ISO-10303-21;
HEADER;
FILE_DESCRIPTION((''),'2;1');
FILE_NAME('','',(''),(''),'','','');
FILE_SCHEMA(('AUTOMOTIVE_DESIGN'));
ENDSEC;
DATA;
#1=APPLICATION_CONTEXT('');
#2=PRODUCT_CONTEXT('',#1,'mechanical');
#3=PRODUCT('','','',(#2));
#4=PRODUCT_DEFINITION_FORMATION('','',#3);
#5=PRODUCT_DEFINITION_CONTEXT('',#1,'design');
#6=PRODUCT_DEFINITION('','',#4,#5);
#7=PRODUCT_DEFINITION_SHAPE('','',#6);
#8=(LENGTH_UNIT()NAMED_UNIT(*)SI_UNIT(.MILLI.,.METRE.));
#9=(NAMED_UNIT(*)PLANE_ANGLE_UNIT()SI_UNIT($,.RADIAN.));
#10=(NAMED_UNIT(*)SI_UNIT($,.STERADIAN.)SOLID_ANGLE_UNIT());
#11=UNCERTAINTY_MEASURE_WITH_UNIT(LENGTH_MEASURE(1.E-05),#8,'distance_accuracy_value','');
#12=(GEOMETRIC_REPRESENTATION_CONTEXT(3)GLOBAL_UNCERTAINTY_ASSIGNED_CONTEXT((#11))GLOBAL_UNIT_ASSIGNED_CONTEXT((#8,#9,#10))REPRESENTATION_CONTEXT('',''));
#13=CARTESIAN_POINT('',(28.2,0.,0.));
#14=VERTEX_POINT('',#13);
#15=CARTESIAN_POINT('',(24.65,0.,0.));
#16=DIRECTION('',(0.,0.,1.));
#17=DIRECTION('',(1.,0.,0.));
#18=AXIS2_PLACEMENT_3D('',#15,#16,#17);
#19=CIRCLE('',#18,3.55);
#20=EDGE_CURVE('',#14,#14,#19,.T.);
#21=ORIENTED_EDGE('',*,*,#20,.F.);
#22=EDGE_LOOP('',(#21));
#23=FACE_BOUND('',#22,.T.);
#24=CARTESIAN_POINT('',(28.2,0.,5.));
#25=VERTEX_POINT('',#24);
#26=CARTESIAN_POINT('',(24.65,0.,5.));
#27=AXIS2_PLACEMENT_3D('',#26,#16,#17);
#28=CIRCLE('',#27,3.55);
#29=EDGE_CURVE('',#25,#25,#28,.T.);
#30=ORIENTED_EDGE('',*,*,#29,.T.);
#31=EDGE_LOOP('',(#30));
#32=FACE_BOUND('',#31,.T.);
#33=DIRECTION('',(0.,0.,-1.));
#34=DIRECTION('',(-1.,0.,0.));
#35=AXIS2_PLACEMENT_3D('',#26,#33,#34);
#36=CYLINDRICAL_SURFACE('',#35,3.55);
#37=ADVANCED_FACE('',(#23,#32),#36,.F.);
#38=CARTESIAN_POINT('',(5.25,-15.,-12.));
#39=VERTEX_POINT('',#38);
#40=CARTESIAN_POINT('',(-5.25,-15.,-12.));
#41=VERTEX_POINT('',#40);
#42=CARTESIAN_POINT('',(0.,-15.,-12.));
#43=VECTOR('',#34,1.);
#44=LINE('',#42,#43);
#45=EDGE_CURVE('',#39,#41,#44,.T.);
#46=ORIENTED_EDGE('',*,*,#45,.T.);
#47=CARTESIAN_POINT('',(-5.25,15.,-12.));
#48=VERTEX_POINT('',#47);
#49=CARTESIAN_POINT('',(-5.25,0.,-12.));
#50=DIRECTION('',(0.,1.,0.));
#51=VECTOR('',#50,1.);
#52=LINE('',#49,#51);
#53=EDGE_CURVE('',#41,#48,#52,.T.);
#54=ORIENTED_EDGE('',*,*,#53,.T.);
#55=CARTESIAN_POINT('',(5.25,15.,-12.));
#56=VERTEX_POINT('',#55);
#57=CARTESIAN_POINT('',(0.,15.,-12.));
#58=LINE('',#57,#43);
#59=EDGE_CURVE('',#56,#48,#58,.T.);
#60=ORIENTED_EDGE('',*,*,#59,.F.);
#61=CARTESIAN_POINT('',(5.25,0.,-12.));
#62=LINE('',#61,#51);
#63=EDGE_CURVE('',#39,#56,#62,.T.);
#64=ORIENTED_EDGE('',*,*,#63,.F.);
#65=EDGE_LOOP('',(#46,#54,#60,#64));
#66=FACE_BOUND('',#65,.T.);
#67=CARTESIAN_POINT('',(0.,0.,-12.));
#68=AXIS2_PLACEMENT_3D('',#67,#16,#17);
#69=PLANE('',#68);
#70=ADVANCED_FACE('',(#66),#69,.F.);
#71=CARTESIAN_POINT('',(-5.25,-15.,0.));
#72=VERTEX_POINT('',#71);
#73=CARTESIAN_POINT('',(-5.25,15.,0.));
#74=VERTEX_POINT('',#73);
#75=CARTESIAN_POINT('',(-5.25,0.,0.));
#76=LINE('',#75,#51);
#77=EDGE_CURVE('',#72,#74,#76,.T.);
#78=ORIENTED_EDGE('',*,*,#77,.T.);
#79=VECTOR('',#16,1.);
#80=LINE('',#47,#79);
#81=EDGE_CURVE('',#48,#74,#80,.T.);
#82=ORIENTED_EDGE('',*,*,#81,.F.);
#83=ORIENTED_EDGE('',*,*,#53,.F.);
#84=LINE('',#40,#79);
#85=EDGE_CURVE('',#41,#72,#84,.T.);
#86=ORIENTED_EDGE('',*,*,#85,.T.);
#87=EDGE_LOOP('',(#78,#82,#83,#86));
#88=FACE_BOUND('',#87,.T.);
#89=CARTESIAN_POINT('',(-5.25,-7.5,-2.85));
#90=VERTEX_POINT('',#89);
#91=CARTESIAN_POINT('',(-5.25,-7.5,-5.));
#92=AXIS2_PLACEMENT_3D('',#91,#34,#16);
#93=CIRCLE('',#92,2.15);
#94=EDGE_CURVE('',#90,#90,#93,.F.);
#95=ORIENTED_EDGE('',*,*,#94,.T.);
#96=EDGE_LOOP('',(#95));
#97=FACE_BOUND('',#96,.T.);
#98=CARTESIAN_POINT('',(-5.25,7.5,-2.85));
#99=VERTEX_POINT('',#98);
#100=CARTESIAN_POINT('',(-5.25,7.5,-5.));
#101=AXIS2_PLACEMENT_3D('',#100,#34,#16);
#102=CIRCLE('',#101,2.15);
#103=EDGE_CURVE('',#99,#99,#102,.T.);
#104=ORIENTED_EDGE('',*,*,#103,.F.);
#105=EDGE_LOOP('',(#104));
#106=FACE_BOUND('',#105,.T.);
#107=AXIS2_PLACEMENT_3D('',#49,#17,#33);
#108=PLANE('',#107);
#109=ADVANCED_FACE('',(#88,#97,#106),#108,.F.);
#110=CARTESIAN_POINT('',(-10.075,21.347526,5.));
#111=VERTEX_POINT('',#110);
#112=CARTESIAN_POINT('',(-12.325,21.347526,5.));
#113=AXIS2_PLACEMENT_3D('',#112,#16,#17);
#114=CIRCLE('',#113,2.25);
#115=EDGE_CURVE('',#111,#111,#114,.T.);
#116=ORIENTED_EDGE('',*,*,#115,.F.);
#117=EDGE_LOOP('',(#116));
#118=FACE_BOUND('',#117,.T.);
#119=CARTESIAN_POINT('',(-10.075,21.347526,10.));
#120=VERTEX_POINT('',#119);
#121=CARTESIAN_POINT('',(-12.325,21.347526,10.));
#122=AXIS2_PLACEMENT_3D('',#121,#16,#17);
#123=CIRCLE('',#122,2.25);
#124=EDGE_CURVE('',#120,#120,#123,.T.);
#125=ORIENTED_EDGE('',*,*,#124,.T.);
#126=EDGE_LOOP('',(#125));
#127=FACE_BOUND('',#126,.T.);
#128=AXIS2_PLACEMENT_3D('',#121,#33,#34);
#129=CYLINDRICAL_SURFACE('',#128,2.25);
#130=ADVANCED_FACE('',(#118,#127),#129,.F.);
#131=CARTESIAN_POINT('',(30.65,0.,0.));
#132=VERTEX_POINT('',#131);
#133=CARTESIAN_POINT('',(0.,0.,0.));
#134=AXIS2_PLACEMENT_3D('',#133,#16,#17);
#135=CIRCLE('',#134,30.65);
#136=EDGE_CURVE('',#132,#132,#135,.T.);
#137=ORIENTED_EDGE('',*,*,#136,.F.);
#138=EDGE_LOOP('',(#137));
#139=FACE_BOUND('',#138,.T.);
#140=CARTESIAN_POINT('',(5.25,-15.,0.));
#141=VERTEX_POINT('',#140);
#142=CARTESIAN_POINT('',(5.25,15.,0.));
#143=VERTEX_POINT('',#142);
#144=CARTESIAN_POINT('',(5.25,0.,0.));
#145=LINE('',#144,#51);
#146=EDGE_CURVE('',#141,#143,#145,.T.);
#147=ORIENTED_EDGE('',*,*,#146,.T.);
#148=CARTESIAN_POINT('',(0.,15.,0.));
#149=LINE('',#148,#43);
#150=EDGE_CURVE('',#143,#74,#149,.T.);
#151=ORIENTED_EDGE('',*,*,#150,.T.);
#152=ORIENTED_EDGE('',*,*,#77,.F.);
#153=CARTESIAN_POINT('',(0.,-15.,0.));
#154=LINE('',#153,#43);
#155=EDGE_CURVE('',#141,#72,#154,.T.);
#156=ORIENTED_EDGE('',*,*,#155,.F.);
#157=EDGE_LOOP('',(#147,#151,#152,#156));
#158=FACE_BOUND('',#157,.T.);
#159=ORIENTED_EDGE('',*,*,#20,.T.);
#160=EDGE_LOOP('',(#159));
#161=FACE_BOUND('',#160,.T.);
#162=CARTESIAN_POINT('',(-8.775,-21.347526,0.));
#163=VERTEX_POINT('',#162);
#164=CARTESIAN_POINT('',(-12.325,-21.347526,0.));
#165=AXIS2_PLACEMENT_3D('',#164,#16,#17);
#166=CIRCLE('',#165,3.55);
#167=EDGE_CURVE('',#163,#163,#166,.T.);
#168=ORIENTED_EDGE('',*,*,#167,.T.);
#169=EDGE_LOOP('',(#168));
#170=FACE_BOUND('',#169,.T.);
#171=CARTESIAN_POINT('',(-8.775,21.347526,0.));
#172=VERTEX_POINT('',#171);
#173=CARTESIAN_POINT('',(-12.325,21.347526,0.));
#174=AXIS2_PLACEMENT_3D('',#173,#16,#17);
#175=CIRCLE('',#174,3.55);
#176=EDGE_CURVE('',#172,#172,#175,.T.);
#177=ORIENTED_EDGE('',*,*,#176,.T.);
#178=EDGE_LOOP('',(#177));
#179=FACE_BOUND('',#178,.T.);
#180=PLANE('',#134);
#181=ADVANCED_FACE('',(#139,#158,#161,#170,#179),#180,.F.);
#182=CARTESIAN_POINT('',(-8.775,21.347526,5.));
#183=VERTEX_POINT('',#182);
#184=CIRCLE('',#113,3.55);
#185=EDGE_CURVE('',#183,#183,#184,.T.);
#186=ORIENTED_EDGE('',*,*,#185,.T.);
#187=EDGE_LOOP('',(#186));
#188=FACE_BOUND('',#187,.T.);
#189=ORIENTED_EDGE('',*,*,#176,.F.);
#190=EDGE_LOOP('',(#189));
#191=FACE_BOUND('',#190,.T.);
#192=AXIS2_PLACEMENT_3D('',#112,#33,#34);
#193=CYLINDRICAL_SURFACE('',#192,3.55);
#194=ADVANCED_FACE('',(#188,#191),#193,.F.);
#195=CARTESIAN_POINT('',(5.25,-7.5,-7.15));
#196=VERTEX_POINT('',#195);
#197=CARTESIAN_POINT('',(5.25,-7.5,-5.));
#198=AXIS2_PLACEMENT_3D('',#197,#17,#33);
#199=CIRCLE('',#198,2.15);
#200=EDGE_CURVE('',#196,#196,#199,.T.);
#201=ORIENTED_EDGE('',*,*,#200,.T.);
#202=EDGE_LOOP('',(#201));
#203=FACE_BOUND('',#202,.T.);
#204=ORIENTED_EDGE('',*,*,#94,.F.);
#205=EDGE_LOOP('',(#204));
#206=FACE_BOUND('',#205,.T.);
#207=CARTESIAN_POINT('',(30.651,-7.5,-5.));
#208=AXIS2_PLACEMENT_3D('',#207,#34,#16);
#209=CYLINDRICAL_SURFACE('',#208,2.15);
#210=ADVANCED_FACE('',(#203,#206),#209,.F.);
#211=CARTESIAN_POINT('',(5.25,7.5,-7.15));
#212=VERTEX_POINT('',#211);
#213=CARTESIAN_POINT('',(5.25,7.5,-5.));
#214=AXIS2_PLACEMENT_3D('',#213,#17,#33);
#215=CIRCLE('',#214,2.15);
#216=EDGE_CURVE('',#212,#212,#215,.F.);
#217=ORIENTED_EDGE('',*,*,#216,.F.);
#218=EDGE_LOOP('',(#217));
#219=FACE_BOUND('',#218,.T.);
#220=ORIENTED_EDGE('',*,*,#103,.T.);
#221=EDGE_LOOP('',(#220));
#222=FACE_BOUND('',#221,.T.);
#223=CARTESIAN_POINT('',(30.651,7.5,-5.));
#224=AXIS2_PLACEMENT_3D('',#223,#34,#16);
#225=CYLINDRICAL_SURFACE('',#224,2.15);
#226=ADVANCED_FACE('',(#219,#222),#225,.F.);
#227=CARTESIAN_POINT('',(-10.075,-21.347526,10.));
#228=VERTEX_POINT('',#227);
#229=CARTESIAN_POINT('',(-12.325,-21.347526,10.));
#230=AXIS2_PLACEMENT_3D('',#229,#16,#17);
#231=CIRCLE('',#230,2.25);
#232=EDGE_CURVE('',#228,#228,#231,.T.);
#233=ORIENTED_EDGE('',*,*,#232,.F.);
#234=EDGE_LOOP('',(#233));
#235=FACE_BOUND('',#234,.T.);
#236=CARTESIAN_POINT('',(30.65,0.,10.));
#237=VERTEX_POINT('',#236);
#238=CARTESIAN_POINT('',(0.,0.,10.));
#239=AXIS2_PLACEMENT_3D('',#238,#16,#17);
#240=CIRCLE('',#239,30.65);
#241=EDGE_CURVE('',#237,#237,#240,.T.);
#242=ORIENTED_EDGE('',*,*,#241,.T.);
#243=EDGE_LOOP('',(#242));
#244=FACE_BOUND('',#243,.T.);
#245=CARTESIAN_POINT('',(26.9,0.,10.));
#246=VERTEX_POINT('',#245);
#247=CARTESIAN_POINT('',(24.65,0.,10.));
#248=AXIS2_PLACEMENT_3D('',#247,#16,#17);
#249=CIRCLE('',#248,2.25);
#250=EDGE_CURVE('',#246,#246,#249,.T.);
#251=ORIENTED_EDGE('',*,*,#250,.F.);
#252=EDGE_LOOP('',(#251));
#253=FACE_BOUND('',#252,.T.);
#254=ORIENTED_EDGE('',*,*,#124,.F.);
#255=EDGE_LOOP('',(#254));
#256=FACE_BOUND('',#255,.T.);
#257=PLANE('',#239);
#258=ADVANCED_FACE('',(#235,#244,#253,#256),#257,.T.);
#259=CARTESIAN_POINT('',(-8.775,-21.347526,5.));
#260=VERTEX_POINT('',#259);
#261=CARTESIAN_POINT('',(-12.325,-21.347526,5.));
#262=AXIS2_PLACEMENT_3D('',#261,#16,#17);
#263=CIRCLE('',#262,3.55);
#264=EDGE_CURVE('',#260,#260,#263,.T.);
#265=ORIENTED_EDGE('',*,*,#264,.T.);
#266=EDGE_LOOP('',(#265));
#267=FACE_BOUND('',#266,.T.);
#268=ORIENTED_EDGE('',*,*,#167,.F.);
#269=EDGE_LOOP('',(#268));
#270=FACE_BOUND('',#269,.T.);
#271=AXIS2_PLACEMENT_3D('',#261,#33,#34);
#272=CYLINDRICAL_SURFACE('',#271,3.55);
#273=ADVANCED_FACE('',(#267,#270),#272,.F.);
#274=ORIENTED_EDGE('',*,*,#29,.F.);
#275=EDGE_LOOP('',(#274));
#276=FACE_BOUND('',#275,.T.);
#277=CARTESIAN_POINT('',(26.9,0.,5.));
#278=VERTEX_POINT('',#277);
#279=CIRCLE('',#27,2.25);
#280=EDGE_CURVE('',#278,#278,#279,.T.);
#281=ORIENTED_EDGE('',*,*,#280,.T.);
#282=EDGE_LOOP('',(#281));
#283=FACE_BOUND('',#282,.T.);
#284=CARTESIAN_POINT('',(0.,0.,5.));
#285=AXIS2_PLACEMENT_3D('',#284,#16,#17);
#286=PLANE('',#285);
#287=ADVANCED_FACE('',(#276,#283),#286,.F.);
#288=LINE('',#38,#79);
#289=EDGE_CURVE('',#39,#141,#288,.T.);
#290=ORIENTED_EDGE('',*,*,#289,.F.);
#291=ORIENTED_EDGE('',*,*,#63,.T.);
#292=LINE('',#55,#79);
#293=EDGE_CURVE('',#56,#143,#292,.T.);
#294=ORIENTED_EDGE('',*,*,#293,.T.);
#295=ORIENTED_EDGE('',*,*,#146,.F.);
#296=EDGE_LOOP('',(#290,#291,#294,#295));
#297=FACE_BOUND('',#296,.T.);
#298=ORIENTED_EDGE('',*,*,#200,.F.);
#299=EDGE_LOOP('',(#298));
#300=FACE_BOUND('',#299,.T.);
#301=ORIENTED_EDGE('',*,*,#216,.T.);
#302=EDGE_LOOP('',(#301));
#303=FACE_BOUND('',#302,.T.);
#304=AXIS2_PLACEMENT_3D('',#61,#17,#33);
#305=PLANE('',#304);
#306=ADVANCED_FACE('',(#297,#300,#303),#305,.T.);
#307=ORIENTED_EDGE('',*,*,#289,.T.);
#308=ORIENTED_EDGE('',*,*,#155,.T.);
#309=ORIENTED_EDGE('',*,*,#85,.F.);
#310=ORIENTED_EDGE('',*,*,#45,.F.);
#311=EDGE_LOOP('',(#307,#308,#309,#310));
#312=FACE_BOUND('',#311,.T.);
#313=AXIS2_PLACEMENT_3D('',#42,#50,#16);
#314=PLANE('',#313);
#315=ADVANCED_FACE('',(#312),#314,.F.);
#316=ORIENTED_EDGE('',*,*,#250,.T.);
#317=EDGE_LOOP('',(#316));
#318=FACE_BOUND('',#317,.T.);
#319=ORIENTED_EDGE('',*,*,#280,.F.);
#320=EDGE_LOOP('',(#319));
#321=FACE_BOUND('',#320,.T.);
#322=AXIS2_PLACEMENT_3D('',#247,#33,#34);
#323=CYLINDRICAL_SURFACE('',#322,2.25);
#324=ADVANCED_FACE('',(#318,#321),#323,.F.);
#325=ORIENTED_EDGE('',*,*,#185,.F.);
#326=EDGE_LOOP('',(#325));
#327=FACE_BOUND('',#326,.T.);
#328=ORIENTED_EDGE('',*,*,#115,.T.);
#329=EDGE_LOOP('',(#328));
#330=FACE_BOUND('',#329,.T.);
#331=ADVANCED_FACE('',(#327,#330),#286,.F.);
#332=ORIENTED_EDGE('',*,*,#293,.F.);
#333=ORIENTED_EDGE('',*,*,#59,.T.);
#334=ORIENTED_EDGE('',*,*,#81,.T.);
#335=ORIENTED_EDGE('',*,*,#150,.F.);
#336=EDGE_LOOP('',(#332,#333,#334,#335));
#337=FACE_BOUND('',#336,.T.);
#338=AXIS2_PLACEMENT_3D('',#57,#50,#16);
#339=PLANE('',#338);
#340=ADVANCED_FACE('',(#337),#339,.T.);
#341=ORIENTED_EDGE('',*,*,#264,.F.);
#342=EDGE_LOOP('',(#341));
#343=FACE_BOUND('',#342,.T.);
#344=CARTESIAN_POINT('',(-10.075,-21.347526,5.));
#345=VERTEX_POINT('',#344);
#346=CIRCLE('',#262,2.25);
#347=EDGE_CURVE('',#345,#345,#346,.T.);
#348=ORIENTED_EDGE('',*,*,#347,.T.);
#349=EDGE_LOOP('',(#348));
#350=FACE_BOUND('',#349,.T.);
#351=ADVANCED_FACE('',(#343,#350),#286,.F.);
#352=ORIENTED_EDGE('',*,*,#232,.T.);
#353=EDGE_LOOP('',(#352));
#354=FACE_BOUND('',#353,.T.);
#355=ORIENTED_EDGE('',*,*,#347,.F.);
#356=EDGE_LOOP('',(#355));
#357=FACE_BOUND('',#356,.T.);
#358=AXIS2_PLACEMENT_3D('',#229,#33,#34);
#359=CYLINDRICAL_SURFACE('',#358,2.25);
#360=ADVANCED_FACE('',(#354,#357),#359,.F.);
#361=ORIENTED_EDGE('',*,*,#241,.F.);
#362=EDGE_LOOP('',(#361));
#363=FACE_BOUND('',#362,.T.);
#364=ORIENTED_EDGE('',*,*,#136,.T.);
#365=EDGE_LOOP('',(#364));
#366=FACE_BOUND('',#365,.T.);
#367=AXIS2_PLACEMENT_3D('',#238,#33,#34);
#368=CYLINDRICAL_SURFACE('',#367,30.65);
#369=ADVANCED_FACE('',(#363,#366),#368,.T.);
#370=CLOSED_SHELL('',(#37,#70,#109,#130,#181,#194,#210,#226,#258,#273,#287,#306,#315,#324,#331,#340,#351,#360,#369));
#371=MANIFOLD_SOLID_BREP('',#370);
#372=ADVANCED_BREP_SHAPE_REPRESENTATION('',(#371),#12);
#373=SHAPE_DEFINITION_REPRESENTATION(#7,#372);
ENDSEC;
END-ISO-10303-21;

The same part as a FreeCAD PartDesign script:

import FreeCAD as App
import Part
import Sketcher
from FreeCAD import Vector

doc = App.newDocument("Part")
body = doc.addObject("PartDesign::Body", "Body")

sketch1 = body.newObject("Sketcher::SketchObject", "Sketch")
sketch1.AttachmentSupport = (doc.getObject("XY_Plane"), [""])
sketch1.MapMode = "FlatFace"
sketch1.addGeometry(Part.Circle(Vector(0, 0, 0), Vector(0, 0, 1), 30.65), False)
sketch1.addGeometry(Part.Circle(Vector(-12.325, -21.347526, 0), Vector(0, 0, 1), 2.25), False)
sketch1.addGeometry(Part.Circle(Vector(-12.325, 21.347526, 0), Vector(0, 0, 1), 2.25), False)
sketch1.addGeometry(Part.Circle(Vector(24.65, 0, 0), Vector(0, 0, 1), 2.25), False)
sketch1.addConstraint(Sketcher.Constraint("Coincident", 0, 3, -1, 1))
sketch1.addConstraint(Sketcher.Constraint("Equal", 1, 2))
sketch1.addConstraint(Sketcher.Constraint("Equal", 2, 3))
sketch1.addConstraint(Sketcher.Constraint("Symmetric", 1, 3, 2, 3, -1))
sketch1.addConstraint(Sketcher.Constraint("PointOnObject", 3, 3, -1))
sketch1.addConstraint(Sketcher.Constraint("Diameter", 0, 61.3))
sketch1.addConstraint(Sketcher.Constraint("Diameter", 1, 4.5))
sketch1.addConstraint(Sketcher.Constraint("DistanceX", -1, 1, 3, 3, 24.65))
sketch1.addConstraint(Sketcher.Constraint("DistanceX", 1, 3, -1, 1, 12.325))
sketch1.addConstraint(Sketcher.Constraint("DistanceY", 1, 3, -1, 1, 21.347526))
pad1 = body.newObject("PartDesign::Pad", "Pad")
pad1.Profile = sketch1
pad1.Length = 10

sketch2 = body.newObject("Sketcher::SketchObject", "Sketch001")
sketch2.AttachmentSupport = (doc.getObject("XY_Plane"), [""])
sketch2.MapMode = "FlatFace"
sketch2.addGeometry(Part.Circle(Vector(24.65, 0, 0), Vector(0, 0, 1), 3.55), False)
sketch2.addGeometry(Part.Circle(Vector(-12.325, -21.347526, 0), Vector(0, 0, 1), 3.55), False)
sketch2.addGeometry(Part.Circle(Vector(-12.325, 21.347526, 0), Vector(0, 0, 1), 3.55), False)
sketch2.addConstraint(Sketcher.Constraint("Equal", 0, 1))
sketch2.addConstraint(Sketcher.Constraint("Equal", 1, 2))
sketch2.addConstraint(Sketcher.Constraint("Symmetric", 1, 3, 2, 3, -1))
sketch2.addConstraint(Sketcher.Constraint("PointOnObject", 0, 3, -1))
sketch2.addConstraint(Sketcher.Constraint("Diameter", 0, 7.1))
sketch2.addConstraint(Sketcher.Constraint("DistanceX", -1, 1, 0, 3, 24.65))
sketch2.addConstraint(Sketcher.Constraint("DistanceX", 1, 3, -1, 1, 12.325))
sketch2.addConstraint(Sketcher.Constraint("DistanceY", 1, 3, -1, 1, 21.347526))
pocket1 = body.newObject("PartDesign::Pocket", "Pocket")
pocket1.Profile = sketch2
pocket1.Length = 5
pocket1.Reversed = True

sketch3 = body.newObject("Sketcher::SketchObject", "Sketch002")
sketch3.AttachmentSupport = (doc.getObject("XY_Plane"), [""])
sketch3.MapMode = "FlatFace"
sketch3.addGeometry(Part.LineSegment(Vector(-5.25, 15, 0), Vector(-5.25, -15, 0)), False)
sketch3.addGeometry(Part.LineSegment(Vector(-5.25, -15, 0), Vector(5.25, -15, 0)), False)
sketch3.addGeometry(Part.LineSegment(Vector(5.25, -15, 0), Vector(5.25, 15, 0)), False)
sketch3.addGeometry(Part.LineSegment(Vector(5.25, 15, 0), Vector(-5.25, 15, 0)), False)
sketch3.addConstraint(Sketcher.Constraint("Coincident", 0, 2, 1, 1))
sketch3.addConstraint(Sketcher.Constraint("Coincident", 1, 2, 2, 1))
sketch3.addConstraint(Sketcher.Constraint("Coincident", 2, 2, 3, 1))
sketch3.addConstraint(Sketcher.Constraint("Coincident", 3, 2, 0, 1))
sketch3.addConstraint(Sketcher.Constraint("Vertical", 0))
sketch3.addConstraint(Sketcher.Constraint("Horizontal", 1))
sketch3.addConstraint(Sketcher.Constraint("Vertical", 2))
sketch3.addConstraint(Sketcher.Constraint("Horizontal", 3))
sketch3.addConstraint(Sketcher.Constraint("Symmetric", 0, 2, 2, 2, -1, 1))
sketch3.addConstraint(Sketcher.Constraint("DistanceY", 0, 2, 0, 1, 30.0))
sketch3.addConstraint(Sketcher.Constraint("DistanceX", 1, 1, 1, 2, 10.5))
pad2 = body.newObject("PartDesign::Pad", "Pad001")
pad2.Profile = sketch3
pad2.Length = 12
pad2.Reversed = True

sketch4 = body.newObject("Sketcher::SketchObject", "Sketch003")
sketch4.AttachmentSupport = (doc.getObject("YZ_Plane"), [""])
sketch4.MapMode = "FlatFace"
sketch4.AttachmentOffset = App.Placement(Vector(0, 0, -5.25), App.Rotation())
sketch4.addGeometry(Part.Circle(Vector(7.5, -5, 0), Vector(0, 0, 1), 2.15), False)
sketch4.addConstraint(Sketcher.Constraint("Diameter", 0, 4.3))
sketch4.addConstraint(Sketcher.Constraint("DistanceY", 0, 3, -1, 1, 5.0))
sketch4.addConstraint(Sketcher.Constraint("DistanceX", -1, 1, 0, 3, 7.5))
pocket2 = body.newObject("PartDesign::Pocket", "Pocket001")
pocket2.Profile = sketch4
pocket2.Type = "UpToFirst"
pocket2.Reversed = True

sketch5 = body.newObject("Sketcher::SketchObject", "Sketch004")
sketch5.AttachmentSupport = (doc.getObject("YZ_Plane"), [""])
sketch5.MapMode = "FlatFace"
sketch5.AttachmentOffset = App.Placement(Vector(0, 0, -5.25), App.Rotation())
sketch5.addGeometry(Part.Circle(Vector(-7.5, -5, 0), Vector(0, 0, 1), 2.15), False)
sketch5.addConstraint(Sketcher.Constraint("Diameter", 0, 4.3))
sketch5.addConstraint(Sketcher.Constraint("DistanceY", 0, 3, -1, 1, 5.0))
sketch5.addConstraint(Sketcher.Constraint("DistanceX", 0, 3, -1, 1, 7.5))
pocket3 = body.newObject("PartDesign::Pocket", "Pocket002")
pocket3.Profile = sketch5
pocket3.Type = "UpToFirst"
pocket3.Reversed = True

doc.recompute()
